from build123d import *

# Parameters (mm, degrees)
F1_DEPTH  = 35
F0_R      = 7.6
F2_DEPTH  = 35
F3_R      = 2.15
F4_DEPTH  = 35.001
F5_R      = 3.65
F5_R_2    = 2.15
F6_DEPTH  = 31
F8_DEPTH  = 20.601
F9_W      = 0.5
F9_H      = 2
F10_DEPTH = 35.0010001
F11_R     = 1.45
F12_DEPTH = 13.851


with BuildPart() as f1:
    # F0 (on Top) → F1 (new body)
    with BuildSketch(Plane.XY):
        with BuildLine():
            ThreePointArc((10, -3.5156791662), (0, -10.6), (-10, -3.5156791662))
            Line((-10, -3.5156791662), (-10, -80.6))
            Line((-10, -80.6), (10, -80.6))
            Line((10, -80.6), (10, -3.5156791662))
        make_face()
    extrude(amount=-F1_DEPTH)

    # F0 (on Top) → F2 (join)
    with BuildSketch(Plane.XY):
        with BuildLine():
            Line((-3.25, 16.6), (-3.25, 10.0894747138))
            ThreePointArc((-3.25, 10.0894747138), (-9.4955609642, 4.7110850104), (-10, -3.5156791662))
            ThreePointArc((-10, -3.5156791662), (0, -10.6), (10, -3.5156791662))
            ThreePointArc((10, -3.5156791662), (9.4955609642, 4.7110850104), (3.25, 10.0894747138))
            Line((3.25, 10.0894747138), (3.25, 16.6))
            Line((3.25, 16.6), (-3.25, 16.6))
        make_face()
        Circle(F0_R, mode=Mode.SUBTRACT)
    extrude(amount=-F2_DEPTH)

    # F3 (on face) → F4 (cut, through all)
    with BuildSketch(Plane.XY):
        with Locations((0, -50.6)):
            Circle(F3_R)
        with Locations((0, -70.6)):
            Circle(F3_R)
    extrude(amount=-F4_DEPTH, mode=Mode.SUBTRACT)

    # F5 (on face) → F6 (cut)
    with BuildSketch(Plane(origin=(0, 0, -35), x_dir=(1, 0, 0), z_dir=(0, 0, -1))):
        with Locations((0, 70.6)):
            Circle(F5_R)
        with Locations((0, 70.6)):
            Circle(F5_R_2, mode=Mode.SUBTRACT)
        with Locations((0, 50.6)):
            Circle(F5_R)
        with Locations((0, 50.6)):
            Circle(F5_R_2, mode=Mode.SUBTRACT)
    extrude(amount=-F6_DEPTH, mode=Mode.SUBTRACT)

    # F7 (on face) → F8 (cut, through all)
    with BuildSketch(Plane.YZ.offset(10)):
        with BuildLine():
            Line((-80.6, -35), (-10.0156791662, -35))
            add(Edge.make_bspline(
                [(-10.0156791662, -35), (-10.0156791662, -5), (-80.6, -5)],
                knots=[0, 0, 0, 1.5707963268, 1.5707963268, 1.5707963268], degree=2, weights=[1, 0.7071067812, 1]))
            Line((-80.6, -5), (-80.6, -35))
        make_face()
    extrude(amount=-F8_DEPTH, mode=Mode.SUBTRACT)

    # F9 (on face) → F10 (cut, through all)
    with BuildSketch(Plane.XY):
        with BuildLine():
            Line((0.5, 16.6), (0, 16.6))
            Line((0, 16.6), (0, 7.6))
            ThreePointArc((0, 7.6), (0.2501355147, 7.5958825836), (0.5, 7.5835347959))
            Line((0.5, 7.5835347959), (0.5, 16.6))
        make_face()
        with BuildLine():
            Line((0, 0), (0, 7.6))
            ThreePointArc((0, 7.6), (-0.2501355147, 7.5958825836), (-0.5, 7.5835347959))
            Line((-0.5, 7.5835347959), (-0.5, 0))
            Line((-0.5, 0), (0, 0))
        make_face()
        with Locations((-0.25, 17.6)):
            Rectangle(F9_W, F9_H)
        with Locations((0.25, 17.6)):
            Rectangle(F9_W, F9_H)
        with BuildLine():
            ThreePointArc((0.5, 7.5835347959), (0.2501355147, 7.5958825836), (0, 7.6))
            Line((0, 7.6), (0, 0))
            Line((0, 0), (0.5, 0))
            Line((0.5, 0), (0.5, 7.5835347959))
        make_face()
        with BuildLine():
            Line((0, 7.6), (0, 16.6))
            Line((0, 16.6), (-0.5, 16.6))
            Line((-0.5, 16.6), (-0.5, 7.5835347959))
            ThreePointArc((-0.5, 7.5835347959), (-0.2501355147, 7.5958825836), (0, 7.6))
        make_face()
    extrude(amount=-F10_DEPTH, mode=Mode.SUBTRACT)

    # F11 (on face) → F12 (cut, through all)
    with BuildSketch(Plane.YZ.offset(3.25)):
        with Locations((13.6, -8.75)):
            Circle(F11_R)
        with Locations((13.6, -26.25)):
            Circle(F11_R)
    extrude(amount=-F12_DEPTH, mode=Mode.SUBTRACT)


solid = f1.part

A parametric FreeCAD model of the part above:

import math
import FreeCAD as App
import Part
import Sketcher
from FreeCAD import Vector
Q = App.Units.Quantity


def add_polygon(sketch, points):
    """Adds a closed chain of lines whose ends are joined by coincident constraints."""
    first, n = sketch.GeometryCount, len(points)
    for a, b in zip(points, points[1:] + points[:1]):
        sketch.addGeometry(Part.LineSegment(App.Vector(*a, 0), App.Vector(*b, 0)), False)
    for i in range(n):
        sketch.addConstraint(Sketcher.Constraint("Coincident", first + i, 2, first + (i + 1) % n, 1))

doc = App.newDocument("Part")
body = doc.addObject("PartDesign::Body", "Body")

# Sketch on XY plane
sketch1 = body.newObject("Sketcher::SketchObject", "Sketch")
sketch1.AttachmentSupport = (doc.getObject("XY_Plane"), [""])
sketch1.MapMode = "FlatFace"
sketch1.addGeometry([
    Part.ArcOfCircle(Part.Circle(Vector(0, 0, 0), Vector(0, 0, 1), 10.6), math.radians(-160.629962), math.radians(-19.370038)),
    Part.LineSegment(Vector(-10, -3.515679, 0), Vector(-10, -80.6, 0)),
    Part.LineSegment(Vector(-10, -80.6, 0), Vector(10, -80.6, 0)),
    Part.LineSegment(Vector(10, -80.6, 0), Vector(10, -3.515679, 0)),
], False)
sketch1.addConstraint([
    Sketcher.Constraint("Coincident", 0, 1, 1, 1),
    Sketcher.Constraint("Coincident", 1, 2, 2, 1),
    Sketcher.Constraint("Coincident", 2, 2, 3, 1),
    Sketcher.Constraint("Coincident", 3, 2, 0, 2),
    Sketcher.Constraint("Vertical", 1),
    Sketcher.Constraint("Horizontal", 2),
    Sketcher.Constraint("Vertical", 3),
    Sketcher.Constraint("Coincident", 0, 3, -1, 1),
    Sketcher.Constraint("Horizontal", 0, 1, 3, 2),
    Sketcher.Constraint("Radius", 0, Q("10.6 mm")),
    Sketcher.Constraint("DistanceX", 2, 1, 2, 2, Q("20 mm")),
    Sketcher.Constraint("DistanceY", 1, 2, -1, 1, Q("80.6 mm")),
])
pad1 = body.newObject("PartDesign::Pad", "Pad")
pad1.Profile = sketch1
pad1.Length = 35
pad1.Reversed = True

# Sketch on XY plane
sketch2 = body.newObject("Sketcher::SketchObject", "Sketch001")
sketch2.AttachmentSupport = (doc.getObject("XY_Plane"), [""])
sketch2.MapMode = "FlatFace"
sketch2.addGeometry([
    Part.LineSegment(Vector(-3.25, 16.6, 0), Vector(-3.25, 10.089475, 0)),  # 0
    Part.ArcOfCircle(Part.Circle(Vector(0, 0, 0), Vector(0, 0, 1), 10.6), math.radians(107.854677), math.radians(199.370038)),  # 1
    Part.ArcOfCircle(Part.Circle(Vector(0, 0, 0), Vector(0, 0, 1), 10.6), math.radians(-160.629962), math.radians(-19.370038)),  # 2
    Part.ArcOfCircle(Part.Circle(Vector(0, 0, 0), Vector(0, 0, 1), 10.6), math.radians(-19.370038), math.radians(72.145323)),  # 3
    Part.LineSegment(Vector(3.25, 10.089475, 0), Vector(3.25, 16.6, 0)),  # 4
    Part.LineSegment(Vector(3.25, 16.6, 0), Vector(-3.25, 16.6, 0)),  # 5
    Part.Circle(Vector(0, 0, 0), Vector(0, 0, 1), 7.6),  # 6
], False)
sketch2.addConstraint([
    Sketcher.Constraint("Coincident", 0, 2, 1, 1),
    Sketcher.Constraint("Tangent", 1, 2, 2, 1),
    Sketcher.Constraint("Tangent", 2, 2, 3, 1),
    Sketcher.Constraint("Coincident", 3, 2, 4, 1),
    Sketcher.Constraint("Coincident", 4, 2, 5, 1),
    Sketcher.Constraint("Coincident", 5, 2, 0, 1),
    Sketcher.Constraint("Vertical", 0),
    Sketcher.Constraint("Vertical", 4),
    Sketcher.Constraint("Horizontal", 5),
    Sketcher.Constraint("Coincident", 1, 3, -1, 1),
    Sketcher.Constraint("Coincident", 3, 3, -1, 1),
    Sketcher.Constraint("Coincident", 6, 3, -1, 1),
    Sketcher.Constraint("Horizontal", 1, 2, 2, 2),
    Sketcher.Constraint("Horizontal", 0, 2, 3, 2),
    Sketcher.Constraint("Diameter", 6, Q("15.2 mm")),
    Sketcher.Constraint("Radius", 1, Q("10.6 mm")),
    Sketcher.Constraint("DistanceX", 5, 2, 5, 1, Q("6.5 mm")),
    Sketcher.Constraint("DistanceX", 1, 2, -1, 1, Q("10 mm")),
    Sketcher.Constraint("DistanceY", -1, 1, 4, 2, Q("16.6 mm")),
])
pad2 = body.newObject("PartDesign::Pad", "Pad001")
pad2.Profile = sketch2
pad2.Length = 35
pad2.Reversed = True

# Sketch on XY plane
sketch3 = body.newObject("Sketcher::SketchObject", "Sketch002")
sketch3.AttachmentSupport = (doc.getObject("XY_Plane"), [""])
sketch3.MapMode = "FlatFace"
sketch3.addGeometry([
    Part.Circle(Vector(0, -50.6, 0), Vector(0, 0, 1), 2.15),
    Part.Circle(Vector(0, -70.6, 0), Vector(0, 0, 1), 2.15),
], False)
sketch3.addConstraint([
    Sketcher.Constraint("Equal", 0, 1),
    Sketcher.Constraint("PointOnObject", 0, 3, -2),
    Sketcher.Constraint("PointOnObject", 1, 3, -2),
    Sketcher.Constraint("Diameter", 0, Q("4.3 mm")),
    Sketcher.Constraint("DistanceY", 1, 3, 0, 3, Q("20 mm")),
    Sketcher.Constraint("DistanceY", 0, 3, -1, 1, Q("50.6 mm")),
])
pocket1 = body.newObject("PartDesign::Pocket", "Pocket")
pocket1.Profile = sketch3
pocket1.Type = "ThroughAll"

# Sketch on XY plane
sketch4 = body.newObject("Sketcher::SketchObject", "Sketch003")
sketch4.AttachmentSupport = (doc.getObject("XY_Plane"), [""])
sketch4.MapMode = "FlatFace"
sketch4.AttachmentOffset = App.Placement(Vector(0, 0, -35), App.Rotation())
sketch4.addGeometry([
    Part.Circle(Vector(0, -70.6, 0), Vector(0, 0, 1), 3.65),
    Part.Circle(Vector(0, -70.6, 0), Vector(0, 0, 1), 2.15),
    Part.Circle(Vector(0, -50.6, 0), Vector(0, 0, 1), 3.65),
    Part.Circle(Vector(0, -50.6, 0), Vector(0, 0, 1), 2.15),
], False)
sketch4.addConstraint([
    Sketcher.Constraint("Coincident", 1, 3, 0, 3),
    Sketcher.Constraint("Coincident", 3, 3, 2, 3),
    Sketcher.Constraint("Equal", 0, 2),
    Sketcher.Constraint("Equal", 1, 3),
    Sketcher.Constraint("PointOnObject", 0, 3, -2),
    Sketcher.Constraint("PointOnObject", 2, 3, -2),
    Sketcher.Constraint("Diameter", 0, Q("7.3 mm")),
    Sketcher.Constraint("Diameter", 1, Q("4.3 mm")),
    Sketcher.Constraint("DistanceY", 0, 3, 2, 3, Q("20 mm")),
    Sketcher.Constraint("DistanceY", 0, 3, -1, 1, Q("70.6 mm")),
])
pocket2 = body.newObject("PartDesign::Pocket", "Pocket001")
pocket2.Profile = sketch4
pocket2.Length = 31
pocket2.Reversed = True

# Sketch on YZ plane
sketch5 = body.newObject("Sketcher::SketchObject", "Sketch004")
sketch5.AttachmentSupport = (doc.getObject("YZ_Plane"), [""])
sketch5.MapMode = "FlatFace"
sketch5.AttachmentOffset = App.Placement(Vector(0, 0, 10), App.Rotation())
sketch5.addGeometry([
    Part.LineSegment(Vector(-80.6, -35, 0), Vector(-10.015679, -35, 0)),
    Part.BSplineCurve([Vector(-10.015679, -35, 0), Vector(-10.015679, -5, 0), Vector(-80.6, -5, 0)], [3, 3], [0, 1.570796327], False, 2, [1, 0.707106781, 1], False),
    Part.LineSegment(Vector(-80.6, -5, 0), Vector(-80.6, -35, 0)),
], False)
sketch5.addConstraint([
    Sketcher.Constraint("Block", 1),
    Sketcher.Constraint("Coincident", 0, 2, 1, 1),
    Sketcher.Constraint("Coincident", 1, 2, 2, 1),
    Sketcher.Constraint("Coincident", 2, 2, 0, 1),
    Sketcher.Constraint("Horizontal", 0),
    Sketcher.Constraint("Vertical", 2),
])
pocket3 = body.newObject("PartDesign::Pocket", "Pocket002")
pocket3.Profile = sketch5
pocket3.Type = "ThroughAll"

# Sketch on XY plane
sketch6 = body.newObject("Sketcher::SketchObject", "Sketch005")
sketch6.AttachmentSupport = (doc.getObject("XY_Plane"), [""])
sketch6.MapMode = "FlatFace"
add_polygon(sketch6, [(-0.5, 0), (0.5, 0), (0.5, 18.6), (-0.5, 18.6)])  # lines 0-3
sketch6.addConstraint([
    Sketcher.Constraint("Horizontal", 0),
    Sketcher.Constraint("Vertical", 1),
    Sketcher.Constraint("Horizontal", 2),
    Sketcher.Constraint("Vertical", 3),
    Sketcher.Constraint("Symmetric", 0, 2, 3, 2, -1, 1),
    Sketcher.Constraint("DistanceX", 0, 1, 0, 2, Q("1 mm")),
    Sketcher.Constraint("DistanceY", 1, 1, 1, 2, Q("18.6 mm")),
])
pocket4 = body.newObject("PartDesign::Pocket", "Pocket003")
pocket4.Profile = sketch6
pocket4.Type = "ThroughAll"

# Sketch on YZ plane
sketch7 = body.newObject("Sketcher::SketchObject", "Sketch006")
sketch7.AttachmentSupport = (doc.getObject("YZ_Plane"), [""])
sketch7.MapMode = "FlatFace"
sketch7.AttachmentOffset = App.Placement(Vector(0, 0, 3.25), App.Rotation())
sketch7.addGeometry([
    Part.Circle(Vector(13.6, -8.75, 0), Vector(0, 0, 1), 1.45),
    Part.Circle(Vector(13.6, -26.25, 0), Vector(0, 0, 1), 1.45),
], False)
sketch7.addConstraint([
    Sketcher.Constraint("Equal", 0, 1),
    Sketcher.Constraint("Vertical", 0, 3, 1, 3),
    Sketcher.Constraint("Diameter", 0, Q("2.9 mm")),
    Sketcher.Constraint("DistanceX", -1, 1, 0, 3, Q("13.6 mm")),
    Sketcher.Constraint("DistanceY", 1, 3, 0, 3, Q("17.5 mm")),
    Sketcher.Constraint("DistanceY", 0, 3, -1, 1, Q("8.75 mm")),
])
pocket5 = body.newObject("PartDesign::Pocket", "Pocket004")
pocket5.Profile = sketch7
pocket5.Type = "ThroughAll"

doc.recompute()
